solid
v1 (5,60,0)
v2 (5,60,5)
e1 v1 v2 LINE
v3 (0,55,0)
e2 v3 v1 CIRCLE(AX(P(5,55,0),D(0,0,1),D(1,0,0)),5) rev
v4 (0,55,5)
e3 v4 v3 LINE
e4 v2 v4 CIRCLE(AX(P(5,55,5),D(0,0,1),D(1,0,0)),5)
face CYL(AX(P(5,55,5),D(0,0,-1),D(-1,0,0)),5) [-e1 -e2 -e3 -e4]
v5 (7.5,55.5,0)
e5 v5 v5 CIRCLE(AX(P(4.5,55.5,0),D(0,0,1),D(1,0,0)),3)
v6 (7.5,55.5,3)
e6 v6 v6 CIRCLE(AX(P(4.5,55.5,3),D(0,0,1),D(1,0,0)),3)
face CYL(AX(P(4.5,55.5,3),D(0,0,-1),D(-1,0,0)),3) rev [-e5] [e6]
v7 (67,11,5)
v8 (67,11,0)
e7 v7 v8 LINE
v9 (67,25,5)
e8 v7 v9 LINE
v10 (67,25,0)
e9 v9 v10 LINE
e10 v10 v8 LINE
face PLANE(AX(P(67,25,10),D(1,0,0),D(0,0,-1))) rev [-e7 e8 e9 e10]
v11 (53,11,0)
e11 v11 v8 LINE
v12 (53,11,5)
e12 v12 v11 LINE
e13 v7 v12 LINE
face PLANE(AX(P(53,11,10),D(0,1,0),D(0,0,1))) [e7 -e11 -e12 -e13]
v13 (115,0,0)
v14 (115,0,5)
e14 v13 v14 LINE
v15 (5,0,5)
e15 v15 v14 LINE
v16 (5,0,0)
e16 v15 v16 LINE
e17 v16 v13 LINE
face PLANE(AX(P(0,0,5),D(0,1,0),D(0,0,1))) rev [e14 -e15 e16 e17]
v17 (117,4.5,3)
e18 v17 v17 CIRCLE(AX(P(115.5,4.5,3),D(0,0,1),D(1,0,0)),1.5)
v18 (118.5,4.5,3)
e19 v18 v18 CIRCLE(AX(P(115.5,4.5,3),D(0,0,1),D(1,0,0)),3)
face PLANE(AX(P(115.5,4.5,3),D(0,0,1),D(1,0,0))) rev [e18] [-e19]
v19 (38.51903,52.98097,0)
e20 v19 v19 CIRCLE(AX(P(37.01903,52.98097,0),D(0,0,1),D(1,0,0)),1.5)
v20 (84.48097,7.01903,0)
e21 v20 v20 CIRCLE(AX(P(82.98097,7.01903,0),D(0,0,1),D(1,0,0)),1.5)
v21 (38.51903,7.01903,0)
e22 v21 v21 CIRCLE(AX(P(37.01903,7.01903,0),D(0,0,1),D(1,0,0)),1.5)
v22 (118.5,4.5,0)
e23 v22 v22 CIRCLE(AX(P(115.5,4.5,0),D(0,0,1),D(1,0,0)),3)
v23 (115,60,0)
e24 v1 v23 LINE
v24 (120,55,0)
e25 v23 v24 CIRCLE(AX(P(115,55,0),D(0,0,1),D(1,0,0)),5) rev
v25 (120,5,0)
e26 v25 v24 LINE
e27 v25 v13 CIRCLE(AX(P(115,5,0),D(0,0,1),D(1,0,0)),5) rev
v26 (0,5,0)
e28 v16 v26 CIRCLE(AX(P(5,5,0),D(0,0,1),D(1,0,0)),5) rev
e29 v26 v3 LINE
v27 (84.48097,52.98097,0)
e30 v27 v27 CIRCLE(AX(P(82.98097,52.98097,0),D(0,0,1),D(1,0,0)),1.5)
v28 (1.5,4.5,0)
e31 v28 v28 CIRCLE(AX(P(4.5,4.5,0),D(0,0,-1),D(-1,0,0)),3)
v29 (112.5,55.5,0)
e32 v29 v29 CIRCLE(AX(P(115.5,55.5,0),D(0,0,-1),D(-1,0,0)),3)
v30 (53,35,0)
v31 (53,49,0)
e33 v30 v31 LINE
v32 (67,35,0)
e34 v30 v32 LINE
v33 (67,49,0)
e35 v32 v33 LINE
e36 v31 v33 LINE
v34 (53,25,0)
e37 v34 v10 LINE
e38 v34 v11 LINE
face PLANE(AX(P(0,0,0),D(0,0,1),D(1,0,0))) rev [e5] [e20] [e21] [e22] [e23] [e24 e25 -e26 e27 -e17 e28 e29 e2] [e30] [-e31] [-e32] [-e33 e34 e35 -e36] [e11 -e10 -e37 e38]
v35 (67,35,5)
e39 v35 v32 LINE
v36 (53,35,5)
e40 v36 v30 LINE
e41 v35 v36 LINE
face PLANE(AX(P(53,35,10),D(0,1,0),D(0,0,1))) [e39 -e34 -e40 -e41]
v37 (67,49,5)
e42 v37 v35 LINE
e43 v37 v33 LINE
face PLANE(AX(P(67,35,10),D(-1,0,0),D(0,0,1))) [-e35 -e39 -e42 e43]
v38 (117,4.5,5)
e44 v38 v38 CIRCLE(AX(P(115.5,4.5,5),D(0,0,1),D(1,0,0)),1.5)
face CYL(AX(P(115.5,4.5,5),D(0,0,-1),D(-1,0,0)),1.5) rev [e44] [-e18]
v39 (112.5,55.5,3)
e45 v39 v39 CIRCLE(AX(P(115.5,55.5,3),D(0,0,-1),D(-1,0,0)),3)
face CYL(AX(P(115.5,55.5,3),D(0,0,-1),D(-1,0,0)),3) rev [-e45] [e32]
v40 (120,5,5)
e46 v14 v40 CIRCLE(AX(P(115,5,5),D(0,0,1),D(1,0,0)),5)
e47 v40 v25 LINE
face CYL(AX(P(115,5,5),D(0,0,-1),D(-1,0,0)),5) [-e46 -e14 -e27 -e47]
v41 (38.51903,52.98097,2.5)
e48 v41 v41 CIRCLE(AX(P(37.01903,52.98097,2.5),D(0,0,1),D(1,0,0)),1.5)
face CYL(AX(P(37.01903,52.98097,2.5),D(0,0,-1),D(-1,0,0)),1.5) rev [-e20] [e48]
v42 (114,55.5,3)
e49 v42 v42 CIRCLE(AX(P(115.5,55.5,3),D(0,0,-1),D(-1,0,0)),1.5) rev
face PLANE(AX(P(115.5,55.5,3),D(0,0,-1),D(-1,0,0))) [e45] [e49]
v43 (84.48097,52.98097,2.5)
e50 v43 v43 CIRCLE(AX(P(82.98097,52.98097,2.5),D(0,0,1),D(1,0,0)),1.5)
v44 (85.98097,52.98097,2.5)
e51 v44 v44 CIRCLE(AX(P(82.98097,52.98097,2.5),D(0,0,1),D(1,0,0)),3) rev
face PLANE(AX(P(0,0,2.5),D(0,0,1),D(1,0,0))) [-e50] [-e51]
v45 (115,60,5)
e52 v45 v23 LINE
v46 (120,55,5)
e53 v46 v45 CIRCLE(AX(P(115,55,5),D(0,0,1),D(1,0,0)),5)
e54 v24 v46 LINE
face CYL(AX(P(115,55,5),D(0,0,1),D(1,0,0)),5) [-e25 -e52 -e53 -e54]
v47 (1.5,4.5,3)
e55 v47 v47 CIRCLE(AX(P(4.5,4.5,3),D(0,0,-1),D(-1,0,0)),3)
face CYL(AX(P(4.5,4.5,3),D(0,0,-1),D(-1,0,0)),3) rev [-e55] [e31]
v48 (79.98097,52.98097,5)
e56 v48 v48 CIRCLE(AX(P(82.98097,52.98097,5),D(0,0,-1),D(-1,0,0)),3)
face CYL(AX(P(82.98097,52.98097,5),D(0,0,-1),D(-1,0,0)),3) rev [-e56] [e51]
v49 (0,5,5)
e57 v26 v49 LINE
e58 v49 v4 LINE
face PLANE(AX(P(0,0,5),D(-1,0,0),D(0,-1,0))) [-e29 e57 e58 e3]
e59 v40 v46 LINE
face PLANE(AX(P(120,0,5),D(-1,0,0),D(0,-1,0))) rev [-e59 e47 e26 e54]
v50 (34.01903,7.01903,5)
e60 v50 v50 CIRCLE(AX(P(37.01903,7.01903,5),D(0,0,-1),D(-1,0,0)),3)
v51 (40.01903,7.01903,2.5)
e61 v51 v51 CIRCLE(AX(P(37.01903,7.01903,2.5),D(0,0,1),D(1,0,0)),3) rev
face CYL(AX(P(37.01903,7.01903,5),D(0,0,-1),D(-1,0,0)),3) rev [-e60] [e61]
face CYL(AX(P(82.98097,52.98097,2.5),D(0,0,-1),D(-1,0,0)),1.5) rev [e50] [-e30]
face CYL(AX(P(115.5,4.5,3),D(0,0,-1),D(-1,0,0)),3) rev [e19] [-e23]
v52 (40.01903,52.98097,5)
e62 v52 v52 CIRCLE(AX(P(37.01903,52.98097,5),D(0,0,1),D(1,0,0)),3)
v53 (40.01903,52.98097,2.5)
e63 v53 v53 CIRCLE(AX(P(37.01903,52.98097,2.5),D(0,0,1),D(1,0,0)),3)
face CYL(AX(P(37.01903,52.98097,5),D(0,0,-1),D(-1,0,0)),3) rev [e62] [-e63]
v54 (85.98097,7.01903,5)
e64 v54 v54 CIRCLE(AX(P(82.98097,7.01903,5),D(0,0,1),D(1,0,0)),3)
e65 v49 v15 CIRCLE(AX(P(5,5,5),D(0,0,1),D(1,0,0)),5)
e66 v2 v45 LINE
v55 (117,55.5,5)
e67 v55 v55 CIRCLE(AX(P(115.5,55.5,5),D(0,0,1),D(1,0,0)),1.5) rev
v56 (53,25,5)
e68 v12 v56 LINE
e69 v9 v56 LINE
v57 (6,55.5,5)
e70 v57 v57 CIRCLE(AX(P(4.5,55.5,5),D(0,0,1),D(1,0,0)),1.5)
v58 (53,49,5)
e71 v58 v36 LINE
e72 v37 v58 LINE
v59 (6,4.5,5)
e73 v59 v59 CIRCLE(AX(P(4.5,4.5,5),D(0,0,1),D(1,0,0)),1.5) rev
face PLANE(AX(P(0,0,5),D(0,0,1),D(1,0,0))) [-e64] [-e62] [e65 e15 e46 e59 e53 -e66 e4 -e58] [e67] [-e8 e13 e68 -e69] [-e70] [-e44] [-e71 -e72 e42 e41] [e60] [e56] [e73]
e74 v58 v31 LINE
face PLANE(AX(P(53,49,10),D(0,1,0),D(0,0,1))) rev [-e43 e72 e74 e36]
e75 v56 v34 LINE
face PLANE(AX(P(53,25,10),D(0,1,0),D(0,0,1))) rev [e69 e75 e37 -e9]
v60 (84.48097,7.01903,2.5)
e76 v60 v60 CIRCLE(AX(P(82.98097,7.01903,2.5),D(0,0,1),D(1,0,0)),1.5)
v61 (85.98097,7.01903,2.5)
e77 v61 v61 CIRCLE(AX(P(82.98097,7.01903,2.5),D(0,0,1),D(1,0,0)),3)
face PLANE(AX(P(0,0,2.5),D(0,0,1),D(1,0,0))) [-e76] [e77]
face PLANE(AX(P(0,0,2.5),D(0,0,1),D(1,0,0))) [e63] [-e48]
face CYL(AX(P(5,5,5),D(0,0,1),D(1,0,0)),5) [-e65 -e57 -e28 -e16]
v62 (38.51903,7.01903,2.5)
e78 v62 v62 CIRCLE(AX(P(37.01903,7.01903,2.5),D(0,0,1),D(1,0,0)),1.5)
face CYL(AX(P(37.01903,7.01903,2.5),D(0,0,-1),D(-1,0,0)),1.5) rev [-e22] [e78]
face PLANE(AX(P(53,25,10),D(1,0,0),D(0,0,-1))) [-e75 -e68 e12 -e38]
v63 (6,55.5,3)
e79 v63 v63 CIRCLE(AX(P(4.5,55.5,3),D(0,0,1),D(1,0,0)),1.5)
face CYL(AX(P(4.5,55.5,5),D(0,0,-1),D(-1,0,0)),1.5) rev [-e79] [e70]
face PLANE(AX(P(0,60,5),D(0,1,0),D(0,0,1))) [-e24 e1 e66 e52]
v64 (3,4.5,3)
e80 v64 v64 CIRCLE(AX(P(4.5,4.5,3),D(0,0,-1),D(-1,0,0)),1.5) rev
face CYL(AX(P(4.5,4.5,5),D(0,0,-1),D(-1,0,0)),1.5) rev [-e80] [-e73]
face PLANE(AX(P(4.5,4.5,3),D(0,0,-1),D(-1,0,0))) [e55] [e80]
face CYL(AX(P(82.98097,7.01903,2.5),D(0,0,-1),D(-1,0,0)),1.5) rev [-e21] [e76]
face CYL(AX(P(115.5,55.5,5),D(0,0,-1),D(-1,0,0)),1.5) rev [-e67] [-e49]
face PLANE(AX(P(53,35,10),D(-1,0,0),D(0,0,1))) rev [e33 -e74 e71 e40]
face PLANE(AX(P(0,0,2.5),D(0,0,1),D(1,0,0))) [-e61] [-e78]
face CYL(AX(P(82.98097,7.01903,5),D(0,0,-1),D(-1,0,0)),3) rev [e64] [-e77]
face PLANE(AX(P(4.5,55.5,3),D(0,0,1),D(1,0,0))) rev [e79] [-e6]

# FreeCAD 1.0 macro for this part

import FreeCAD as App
import Part
import Sketcher
Q = App.Units.Quantity


def edges_at(feature, points):
    """Names of the edges that pass closest to the given points."""
    edges = feature.Shape.Edges
    near = lambda p: min(range(len(edges)), key=lambda i: edges[i].distToShape(Part.Vertex(*p))[0])
    return sorted({f"Edge{near(p) + 1}" for p in points})

doc = App.newDocument("Part")
body = doc.addObject("PartDesign::Body", "Body")

# Sketch on XY plane
sketch1 = body.newObject("Sketcher::SketchObject", "Sketch")
sketch1.AttachmentSupport = (doc.getObject("XY_Plane"), [""])
sketch1.MapMode = "FlatFace"
sketch1.addGeometry(Part.LineSegment(App.Vector(0, 60, 0), App.Vector(0, 0, 0)), False)
sketch1.addGeometry(Part.LineSegment(App.Vector(0, 0, 0), App.Vector(120, 0, 0)), False)
sketch1.addGeometry(Part.LineSegment(App.Vector(120, 0, 0), App.Vector(120, 60, 0)), False)
sketch1.addGeometry(Part.LineSegment(App.Vector(120, 60, 0), App.Vector(0, 60, 0)), False)
sketch1.addConstraint(Sketcher.Constraint("Coincident", 0, 2, 1, 1))
sketch1.addConstraint(Sketcher.Constraint("Coincident", 1, 2, 2, 1))
sketch1.addConstraint(Sketcher.Constraint("Coincident", 2, 2, 3, 1))
sketch1.addConstraint(Sketcher.Constraint("Coincident", 3, 2, 0, 1))
sketch1.addConstraint(Sketcher.Constraint("Vertical", 0))
sketch1.addConstraint(Sketcher.Constraint("Horizontal", 1))
sketch1.addConstraint(Sketcher.Constraint("Vertical", 2))
sketch1.addConstraint(Sketcher.Constraint("Horizontal", 3))
sketch1.addConstraint(Sketcher.Constraint("Coincident", 0, 2, -1, 1))
sketch1.addConstraint(Sketcher.Constraint("DistanceX", 1, 1, 1, 2, Q("120 mm")))
sketch1.addConstraint(Sketcher.Constraint("DistanceY", 0, 2, 0, 1, Q("60 mm")))
pad1 = body.newObject("PartDesign::Pad", "Pad")
pad1.Profile = sketch1
pad1.Length = 5

# Sketch on XY plane
sketch2 = body.newObject("Sketcher::SketchObject", "Sketch001")
sketch2.AttachmentSupport = (doc.getObject("XY_Plane"), [""])
sketch2.MapMode = "FlatFace"
sketch2.addGeometry(Part.Circle(App.Vector(4.5, 55.5, 0), App.Vector(0, 0, 1), 1.5), False)
sketch2.addGeometry(Part.Circle(App.Vector(4.5, 4.5, 0), App.Vector(0, 0, 1), 1.5), False)
sketch2.addGeometry(Part.Circle(App.Vector(115.5, 4.5, 0), App.Vector(0, 0, 1), 1.5), False)
sketch2.addGeometry(Part.Circle(App.Vector(115.5, 55.5, 0), App.Vector(0, 0, 1), 1.5), False)
sketch2.addConstraint(Sketcher.Constraint("Equal", 0, 1))
sketch2.addConstraint(Sketcher.Constraint("Equal", 1, 2))
sketch2.addConstraint(Sketcher.Constraint("Equal", 2, 3))
sketch2.addConstraint(Sketcher.Constraint("Horizontal", 1, 3, 2, 3))
sketch2.addConstraint(Sketcher.Constraint("Horizontal", 0, 3, 3, 3))
sketch2.addConstraint(Sketcher.Constraint("Vertical", 0, 3, 1, 3))
sketch2.addConstraint(Sketcher.Constraint("Vertical", 2, 3, 3, 3))
sketch2.addConstraint(Sketcher.Constraint("Diameter", 0, Q("3 mm")))
sketch2.addConstraint(Sketcher.Constraint("DistanceY", 1, 3, 0, 3, Q("51 mm")))
sketch2.addConstraint(Sketcher.Constraint("DistanceX", 1, 3, 2, 3, Q("111 mm")))
sketch2.addConstraint(Sketcher.Constraint("DistanceX", -1, 1, 0, 3, Q("4.5 mm")))
sketch2.addConstraint(Sketcher.Constraint("DistanceY", -1, 1, 0, 3, Q("55.5 mm")))
pocket1 = body.newObject("PartDesign::Pocket", "Pocket")
pocket1.Profile = sketch2
pocket1.Length = 5
pocket1.Reversed = True

# Sketch on XY plane
sketch3 = body.newObject("Sketcher::SketchObject", "Sketch002")
sketch3.AttachmentSupport = (doc.getObject("XY_Plane"), [""])
sketch3.MapMode = "FlatFace"
sketch3.addGeometry(Part.Circle(App.Vector(4.5, 55.5, 0), App.Vector(0, 0, 1), 3), False)
sketch3.addGeometry(Part.Circle(App.Vector(115.5, 55.5, 0), App.Vector(0, 0, 1), 3), False)
sketch3.addGeometry(Part.Circle(App.Vector(4.5, 4.5, 0), App.Vector(0, 0, 1), 3), False)
sketch3.addGeometry(Part.Circle(App.Vector(115.5, 4.5, 0), App.Vector(0, 0, 1), 3), False)
sketch3.addConstraint(Sketcher.Constraint("Equal", 0, 1))
sketch3.addConstraint(Sketcher.Constraint("Equal", 1, 2))
sketch3.addConstraint(Sketcher.Constraint("Equal", 2, 3))
sketch3.addConstraint(Sketcher.Constraint("Horizontal", 0, 3, 1, 3))
sketch3.addConstraint(Sketcher.Constraint("Horizontal", 2, 3, 3, 3))
sketch3.addConstraint(Sketcher.Constraint("Vertical", 0, 3, 2, 3))
sketch3.addConstraint(Sketcher.Constraint("Vertical", 1, 3, 3, 3))
sketch3.addConstraint(Sketcher.Constraint("Diameter", 0, Q("6 mm")))
sketch3.addConstraint(Sketcher.Constraint("DistanceX", 0, 3, 1, 3, Q("111 mm")))
sketch3.addConstraint(Sketcher.Constraint("DistanceY", 2, 3, 0, 3, Q("51 mm")))
sketch3.addConstraint(Sketcher.Constraint("DistanceX", -1, 1, 0, 3, Q("4.5 mm")))
sketch3.addConstraint(Sketcher.Constraint("DistanceY", -1, 1, 0, 3, Q("55.5 mm")))
pocket2 = body.newObject("PartDesign::Pocket", "Pocket001")
pocket2.Profile = sketch3
pocket2.Length = 3
pocket2.Reversed = True

# Sketch on XY plane
sketch4 = body.newObject("Sketcher::SketchObject", "Sketch003")
sketch4.AttachmentSupport = (doc.getObject("XY_Plane"), [""])
sketch4.MapMode = "FlatFace"
sketch4.addGeometry(Part.Circle(App.Vector(37.01903, 52.98097, 0), App.Vector(0, 0, 1), 3), False)
sketch4.addGeometry(Part.Circle(App.Vector(82.98097, 52.98097, 0), App.Vector(0, 0, 1), 3), False)
sketch4.addGeometry(Part.Circle(App.Vector(37.01903, 7.01903, 0), App.Vector(0, 0, 1), 3), False)
sketch4.addGeometry(Part.Circle(App.Vector(82.98097, 7.01903, 0), App.Vector(0, 0, 1), 3), False)
sketch4.addConstraint(Sketcher.Constraint("Equal", 0, 1))
sketch4.addConstraint(Sketcher.Constraint("Equal", 1, 2))
sketch4.addConstraint(Sketcher.Constraint("Equal", 2, 3))
sketch4.addConstraint(Sketcher.Constraint("Horizontal", 0, 3, 1, 3))
sketch4.addConstraint(Sketcher.Constraint("Horizontal", 2, 3, 3, 3))
sketch4.addConstraint(Sketcher.Constraint("Vertical", 0, 3, 2, 3))
sketch4.addConstraint(Sketcher.Constraint("Vertical", 1, 3, 3, 3))
sketch4.addConstraint(Sketcher.Constraint("Diameter", 0, Q("6 mm")))
sketch4.addConstraint(Sketcher.Constraint("DistanceX", -1, 1, 0, 3, Q("37.01903 mm")))
sketch4.addConstraint(Sketcher.Constraint("DistanceY", -1, 1, 0, 3, Q("52.98097 mm")))
sketch4.addConstraint(Sketcher.Constraint("DistanceX", -1, 1, 1, 3, Q("82.98097 mm")))
sketch4.addConstraint(Sketcher.Constraint("DistanceY", -1, 1, 2, 3, Q("7.01903 mm")))
pocket3 = body.newObject("PartDesign::Pocket", "Pocket002")
pocket3.Profile = sketch4
pocket3.Length = 5
pocket3.Reversed = True

# Sketch on XY plane
sketch5 = body.newObject("Sketcher::SketchObject", "Sketch004")
sketch5.AttachmentSupport = (doc.getObject("XY_Plane"), [""])
sketch5.MapMode = "FlatFace"
sketch5.addGeometry(Part.Circle(App.Vector(82.98097, 52.98097, 0), App.Vector(0, 0, 1), 3), False)
sketch5.addGeometry(Part.Circle(App.Vector(82.98097, 52.98097, 0), App.Vector(0, 0, 1), 1.5), False)
sketch5.addGeometry(Part.Circle(App.Vector(82.98097, 7.01903, 0), App.Vector(0, 0, 1), 3), False)
sketch5.addGeometry(Part.Circle(App.Vector(82.98097, 7.01903, 0), App.Vector(0, 0, 1), 1.5), False)
sketch5.addGeometry(Part.Circle(App.Vector(37.01903, 52.98097, 0), App.Vector(0, 0, 1), 3), False)
sketch5.addGeometry(Part.Circle(App.Vector(37.01903, 52.98097, 0), App.Vector(0, 0, 1), 1.5), False)
sketch5.addGeometry(Part.Circle(App.Vector(37.01903, 7.01903, 0), App.Vector(0, 0, 1), 3), False)
sketch5.addGeometry(Part.Circle(App.Vector(37.01903, 7.01903, 0), App.Vector(0, 0, 1), 1.5), False)
sketch5.addConstraint(Sketcher.Constraint("Coincident", 1, 3, 0, 3))
sketch5.addConstraint(Sketcher.Constraint("Coincident", 3, 3, 2, 3))
sketch5.addConstraint(Sketcher.Constraint("Coincident", 5, 3, 4, 3))
sketch5.addConstraint(Sketcher.Constraint("Coincident", 7, 3, 6, 3))
sketch5.addConstraint(Sketcher.Constraint("Equal", 0, 2))
sketch5.addConstraint(Sketcher.Constraint("Equal", 1, 3))
sketch5.addConstraint(Sketcher.Constraint("Equal", 2, 4))
sketch5.addConstraint(Sketcher.Constraint("Equal", 3, 5))
sketch5.addConstraint(Sketcher.Constraint("Equal", 4, 6))
sketch5.addConstraint(Sketcher.Constraint("Equal", 5, 7))
sketch5.addConstraint(Sketcher.Constraint("Horizontal", 1, 3, 4, 3))
sketch5.addConstraint(Sketcher.Constraint("Horizontal", 3, 3, 6, 3))
sketch5.addConstraint(Sketcher.Constraint("Vertical", 1, 3, 2, 3))
sketch5.addConstraint(Sketcher.Constraint("Vertical", 5, 3, 6, 3))
sketch5.addConstraint(Sketcher.Constraint("Diameter", 0, Q("6 mm")))
sketch5.addConstraint(Sketcher.Constraint("Diameter", 1, Q("3 mm")))
sketch5.addConstraint(Sketcher.Constraint("DistanceX", -1, 1, 0, 3, Q("82.98097 mm")))
sketch5.addConstraint(Sketcher.Constraint("DistanceY", -1, 1, 0, 3, Q("52.98097 mm")))
sketch5.addConstraint(Sketcher.Constraint("DistanceY", -1, 1, 2, 3, Q("7.01903 mm")))
sketch5.addConstraint(Sketcher.Constraint("DistanceX", -1, 1, 4, 3, Q("37.01903 mm")))
pad2 = body.newObject("PartDesign::Pad", "Pad001")
pad2.Profile = sketch5
pad2.Length = 2.5
doc.recompute()

fillet = body.newObject("PartDesign::Fillet", "Fillet")
fillet.Base = (pad2, edges_at(pad2, [
    (0, 0, 2.5),
    (0, 60, 2.5),
    (120, 60, 2.5),
    (120, 0, 2.5),
]))
fillet.Radius = 5

# Sketch on XY plane
sketch6 = body.newObject("Sketcher::SketchObject", "Sketch005")
sketch6.AttachmentSupport = (doc.getObject("XY_Plane"), [""])
sketch6.MapMode = "FlatFace"
sketch6.addGeometry(Part.LineSegment(App.Vector(53, 25, 0), App.Vector(53, 11, 0)), False)
sketch6.addGeometry(Part.LineSegment(App.Vector(53, 11, 0), App.Vector(67, 11, 0)), False)
sketch6.addGeometry(Part.LineSegment(App.Vector(67, 11, 0), App.Vector(67, 25, 0)), False)
sketch6.addGeometry(Part.LineSegment(App.Vector(67, 25, 0), App.Vector(53, 25, 0)), False)
sketch6.addGeometry(Part.LineSegment(App.Vector(53, 49, 0), App.Vector(53, 35, 0)), False)
sketch6.addGeometry(Part.LineSegment(App.Vector(53, 35, 0), App.Vector(67, 35, 0)), False)
sketch6.addGeometry(Part.LineSegment(App.Vector(67, 35, 0), App.Vector(67, 49, 0)), False)
sketch6.addGeometry(Part.LineSegment(App.Vector(67, 49, 0), App.Vector(53, 49, 0)), False)
sketch6.addConstraint(Sketcher.Constraint("Coincident", 0, 2, 1, 1))
sketch6.addConstraint(Sketcher.Constraint("Coincident", 1, 2, 2, 1))
sketch6.addConstraint(Sketcher.Constraint("Coincident", 2, 2, 3, 1))
sketch6.addConstraint(Sketcher.Constraint("Coincident", 3, 2, 0, 1))
sketch6.addConstraint(Sketcher.Constraint("Coincident", 4, 2, 5, 1))
sketch6.addConstraint(Sketcher.Constraint("Coincident", 5, 2, 6, 1))
sketch6.addConstraint(Sketcher.Constraint("Coincident", 6, 2, 7, 1))
sketch6.addConstraint(Sketcher.Constraint("Coincident", 7, 2, 4, 1))
sketch6.addConstraint(Sketcher.Constraint("Vertical", 0))
sketch6.addConstraint(Sketcher.Constraint("Horizontal", 1))
sketch6.addConstraint(Sketcher.Constraint("Vertical", 2))
sketch6.addConstraint(Sketcher.Constraint("Horizontal", 3))
sketch6.addConstraint(Sketcher.Constraint("Vertical", 4))
sketch6.addConstraint(Sketcher.Constraint("Horizontal", 5))
sketch6.addConstraint(Sketcher.Constraint("Vertical", 6))
sketch6.addConstraint(Sketcher.Constraint("Horizontal", 7))
sketch6.addConstraint(Sketcher.Constraint("Vertical", 3, 2, 4, 2))
sketch6.addConstraint(Sketcher.Constraint("Vertical", 2, 2, 5, 2))
sketch6.addConstraint(Sketcher.Constraint("Equal", 7, 0))
sketch6.addConstraint(Sketcher.Constraint("Equal", 2, 4))
sketch6.addConstraint(Sketcher.Constraint("DistanceX", 1, 1, 1, 2, Q("14 mm")))
sketch6.addConstraint(Sketcher.Constraint("DistanceX", -1, 1, 0, 2, Q("53 mm")))
sketch6.addConstraint(Sketcher.Constraint("DistanceY", -1, 1, 0, 2, Q("11 mm")))
sketch6.addConstraint(Sketcher.Constraint("DistanceY", -1, 1, 4, 2, Q("35 mm")))
pocket4 = body.newObject("PartDesign::Pocket", "Pocket003")
pocket4.Profile = sketch6
pocket4.Length = 10
pocket4.Reversed = True

doc.recompute()
